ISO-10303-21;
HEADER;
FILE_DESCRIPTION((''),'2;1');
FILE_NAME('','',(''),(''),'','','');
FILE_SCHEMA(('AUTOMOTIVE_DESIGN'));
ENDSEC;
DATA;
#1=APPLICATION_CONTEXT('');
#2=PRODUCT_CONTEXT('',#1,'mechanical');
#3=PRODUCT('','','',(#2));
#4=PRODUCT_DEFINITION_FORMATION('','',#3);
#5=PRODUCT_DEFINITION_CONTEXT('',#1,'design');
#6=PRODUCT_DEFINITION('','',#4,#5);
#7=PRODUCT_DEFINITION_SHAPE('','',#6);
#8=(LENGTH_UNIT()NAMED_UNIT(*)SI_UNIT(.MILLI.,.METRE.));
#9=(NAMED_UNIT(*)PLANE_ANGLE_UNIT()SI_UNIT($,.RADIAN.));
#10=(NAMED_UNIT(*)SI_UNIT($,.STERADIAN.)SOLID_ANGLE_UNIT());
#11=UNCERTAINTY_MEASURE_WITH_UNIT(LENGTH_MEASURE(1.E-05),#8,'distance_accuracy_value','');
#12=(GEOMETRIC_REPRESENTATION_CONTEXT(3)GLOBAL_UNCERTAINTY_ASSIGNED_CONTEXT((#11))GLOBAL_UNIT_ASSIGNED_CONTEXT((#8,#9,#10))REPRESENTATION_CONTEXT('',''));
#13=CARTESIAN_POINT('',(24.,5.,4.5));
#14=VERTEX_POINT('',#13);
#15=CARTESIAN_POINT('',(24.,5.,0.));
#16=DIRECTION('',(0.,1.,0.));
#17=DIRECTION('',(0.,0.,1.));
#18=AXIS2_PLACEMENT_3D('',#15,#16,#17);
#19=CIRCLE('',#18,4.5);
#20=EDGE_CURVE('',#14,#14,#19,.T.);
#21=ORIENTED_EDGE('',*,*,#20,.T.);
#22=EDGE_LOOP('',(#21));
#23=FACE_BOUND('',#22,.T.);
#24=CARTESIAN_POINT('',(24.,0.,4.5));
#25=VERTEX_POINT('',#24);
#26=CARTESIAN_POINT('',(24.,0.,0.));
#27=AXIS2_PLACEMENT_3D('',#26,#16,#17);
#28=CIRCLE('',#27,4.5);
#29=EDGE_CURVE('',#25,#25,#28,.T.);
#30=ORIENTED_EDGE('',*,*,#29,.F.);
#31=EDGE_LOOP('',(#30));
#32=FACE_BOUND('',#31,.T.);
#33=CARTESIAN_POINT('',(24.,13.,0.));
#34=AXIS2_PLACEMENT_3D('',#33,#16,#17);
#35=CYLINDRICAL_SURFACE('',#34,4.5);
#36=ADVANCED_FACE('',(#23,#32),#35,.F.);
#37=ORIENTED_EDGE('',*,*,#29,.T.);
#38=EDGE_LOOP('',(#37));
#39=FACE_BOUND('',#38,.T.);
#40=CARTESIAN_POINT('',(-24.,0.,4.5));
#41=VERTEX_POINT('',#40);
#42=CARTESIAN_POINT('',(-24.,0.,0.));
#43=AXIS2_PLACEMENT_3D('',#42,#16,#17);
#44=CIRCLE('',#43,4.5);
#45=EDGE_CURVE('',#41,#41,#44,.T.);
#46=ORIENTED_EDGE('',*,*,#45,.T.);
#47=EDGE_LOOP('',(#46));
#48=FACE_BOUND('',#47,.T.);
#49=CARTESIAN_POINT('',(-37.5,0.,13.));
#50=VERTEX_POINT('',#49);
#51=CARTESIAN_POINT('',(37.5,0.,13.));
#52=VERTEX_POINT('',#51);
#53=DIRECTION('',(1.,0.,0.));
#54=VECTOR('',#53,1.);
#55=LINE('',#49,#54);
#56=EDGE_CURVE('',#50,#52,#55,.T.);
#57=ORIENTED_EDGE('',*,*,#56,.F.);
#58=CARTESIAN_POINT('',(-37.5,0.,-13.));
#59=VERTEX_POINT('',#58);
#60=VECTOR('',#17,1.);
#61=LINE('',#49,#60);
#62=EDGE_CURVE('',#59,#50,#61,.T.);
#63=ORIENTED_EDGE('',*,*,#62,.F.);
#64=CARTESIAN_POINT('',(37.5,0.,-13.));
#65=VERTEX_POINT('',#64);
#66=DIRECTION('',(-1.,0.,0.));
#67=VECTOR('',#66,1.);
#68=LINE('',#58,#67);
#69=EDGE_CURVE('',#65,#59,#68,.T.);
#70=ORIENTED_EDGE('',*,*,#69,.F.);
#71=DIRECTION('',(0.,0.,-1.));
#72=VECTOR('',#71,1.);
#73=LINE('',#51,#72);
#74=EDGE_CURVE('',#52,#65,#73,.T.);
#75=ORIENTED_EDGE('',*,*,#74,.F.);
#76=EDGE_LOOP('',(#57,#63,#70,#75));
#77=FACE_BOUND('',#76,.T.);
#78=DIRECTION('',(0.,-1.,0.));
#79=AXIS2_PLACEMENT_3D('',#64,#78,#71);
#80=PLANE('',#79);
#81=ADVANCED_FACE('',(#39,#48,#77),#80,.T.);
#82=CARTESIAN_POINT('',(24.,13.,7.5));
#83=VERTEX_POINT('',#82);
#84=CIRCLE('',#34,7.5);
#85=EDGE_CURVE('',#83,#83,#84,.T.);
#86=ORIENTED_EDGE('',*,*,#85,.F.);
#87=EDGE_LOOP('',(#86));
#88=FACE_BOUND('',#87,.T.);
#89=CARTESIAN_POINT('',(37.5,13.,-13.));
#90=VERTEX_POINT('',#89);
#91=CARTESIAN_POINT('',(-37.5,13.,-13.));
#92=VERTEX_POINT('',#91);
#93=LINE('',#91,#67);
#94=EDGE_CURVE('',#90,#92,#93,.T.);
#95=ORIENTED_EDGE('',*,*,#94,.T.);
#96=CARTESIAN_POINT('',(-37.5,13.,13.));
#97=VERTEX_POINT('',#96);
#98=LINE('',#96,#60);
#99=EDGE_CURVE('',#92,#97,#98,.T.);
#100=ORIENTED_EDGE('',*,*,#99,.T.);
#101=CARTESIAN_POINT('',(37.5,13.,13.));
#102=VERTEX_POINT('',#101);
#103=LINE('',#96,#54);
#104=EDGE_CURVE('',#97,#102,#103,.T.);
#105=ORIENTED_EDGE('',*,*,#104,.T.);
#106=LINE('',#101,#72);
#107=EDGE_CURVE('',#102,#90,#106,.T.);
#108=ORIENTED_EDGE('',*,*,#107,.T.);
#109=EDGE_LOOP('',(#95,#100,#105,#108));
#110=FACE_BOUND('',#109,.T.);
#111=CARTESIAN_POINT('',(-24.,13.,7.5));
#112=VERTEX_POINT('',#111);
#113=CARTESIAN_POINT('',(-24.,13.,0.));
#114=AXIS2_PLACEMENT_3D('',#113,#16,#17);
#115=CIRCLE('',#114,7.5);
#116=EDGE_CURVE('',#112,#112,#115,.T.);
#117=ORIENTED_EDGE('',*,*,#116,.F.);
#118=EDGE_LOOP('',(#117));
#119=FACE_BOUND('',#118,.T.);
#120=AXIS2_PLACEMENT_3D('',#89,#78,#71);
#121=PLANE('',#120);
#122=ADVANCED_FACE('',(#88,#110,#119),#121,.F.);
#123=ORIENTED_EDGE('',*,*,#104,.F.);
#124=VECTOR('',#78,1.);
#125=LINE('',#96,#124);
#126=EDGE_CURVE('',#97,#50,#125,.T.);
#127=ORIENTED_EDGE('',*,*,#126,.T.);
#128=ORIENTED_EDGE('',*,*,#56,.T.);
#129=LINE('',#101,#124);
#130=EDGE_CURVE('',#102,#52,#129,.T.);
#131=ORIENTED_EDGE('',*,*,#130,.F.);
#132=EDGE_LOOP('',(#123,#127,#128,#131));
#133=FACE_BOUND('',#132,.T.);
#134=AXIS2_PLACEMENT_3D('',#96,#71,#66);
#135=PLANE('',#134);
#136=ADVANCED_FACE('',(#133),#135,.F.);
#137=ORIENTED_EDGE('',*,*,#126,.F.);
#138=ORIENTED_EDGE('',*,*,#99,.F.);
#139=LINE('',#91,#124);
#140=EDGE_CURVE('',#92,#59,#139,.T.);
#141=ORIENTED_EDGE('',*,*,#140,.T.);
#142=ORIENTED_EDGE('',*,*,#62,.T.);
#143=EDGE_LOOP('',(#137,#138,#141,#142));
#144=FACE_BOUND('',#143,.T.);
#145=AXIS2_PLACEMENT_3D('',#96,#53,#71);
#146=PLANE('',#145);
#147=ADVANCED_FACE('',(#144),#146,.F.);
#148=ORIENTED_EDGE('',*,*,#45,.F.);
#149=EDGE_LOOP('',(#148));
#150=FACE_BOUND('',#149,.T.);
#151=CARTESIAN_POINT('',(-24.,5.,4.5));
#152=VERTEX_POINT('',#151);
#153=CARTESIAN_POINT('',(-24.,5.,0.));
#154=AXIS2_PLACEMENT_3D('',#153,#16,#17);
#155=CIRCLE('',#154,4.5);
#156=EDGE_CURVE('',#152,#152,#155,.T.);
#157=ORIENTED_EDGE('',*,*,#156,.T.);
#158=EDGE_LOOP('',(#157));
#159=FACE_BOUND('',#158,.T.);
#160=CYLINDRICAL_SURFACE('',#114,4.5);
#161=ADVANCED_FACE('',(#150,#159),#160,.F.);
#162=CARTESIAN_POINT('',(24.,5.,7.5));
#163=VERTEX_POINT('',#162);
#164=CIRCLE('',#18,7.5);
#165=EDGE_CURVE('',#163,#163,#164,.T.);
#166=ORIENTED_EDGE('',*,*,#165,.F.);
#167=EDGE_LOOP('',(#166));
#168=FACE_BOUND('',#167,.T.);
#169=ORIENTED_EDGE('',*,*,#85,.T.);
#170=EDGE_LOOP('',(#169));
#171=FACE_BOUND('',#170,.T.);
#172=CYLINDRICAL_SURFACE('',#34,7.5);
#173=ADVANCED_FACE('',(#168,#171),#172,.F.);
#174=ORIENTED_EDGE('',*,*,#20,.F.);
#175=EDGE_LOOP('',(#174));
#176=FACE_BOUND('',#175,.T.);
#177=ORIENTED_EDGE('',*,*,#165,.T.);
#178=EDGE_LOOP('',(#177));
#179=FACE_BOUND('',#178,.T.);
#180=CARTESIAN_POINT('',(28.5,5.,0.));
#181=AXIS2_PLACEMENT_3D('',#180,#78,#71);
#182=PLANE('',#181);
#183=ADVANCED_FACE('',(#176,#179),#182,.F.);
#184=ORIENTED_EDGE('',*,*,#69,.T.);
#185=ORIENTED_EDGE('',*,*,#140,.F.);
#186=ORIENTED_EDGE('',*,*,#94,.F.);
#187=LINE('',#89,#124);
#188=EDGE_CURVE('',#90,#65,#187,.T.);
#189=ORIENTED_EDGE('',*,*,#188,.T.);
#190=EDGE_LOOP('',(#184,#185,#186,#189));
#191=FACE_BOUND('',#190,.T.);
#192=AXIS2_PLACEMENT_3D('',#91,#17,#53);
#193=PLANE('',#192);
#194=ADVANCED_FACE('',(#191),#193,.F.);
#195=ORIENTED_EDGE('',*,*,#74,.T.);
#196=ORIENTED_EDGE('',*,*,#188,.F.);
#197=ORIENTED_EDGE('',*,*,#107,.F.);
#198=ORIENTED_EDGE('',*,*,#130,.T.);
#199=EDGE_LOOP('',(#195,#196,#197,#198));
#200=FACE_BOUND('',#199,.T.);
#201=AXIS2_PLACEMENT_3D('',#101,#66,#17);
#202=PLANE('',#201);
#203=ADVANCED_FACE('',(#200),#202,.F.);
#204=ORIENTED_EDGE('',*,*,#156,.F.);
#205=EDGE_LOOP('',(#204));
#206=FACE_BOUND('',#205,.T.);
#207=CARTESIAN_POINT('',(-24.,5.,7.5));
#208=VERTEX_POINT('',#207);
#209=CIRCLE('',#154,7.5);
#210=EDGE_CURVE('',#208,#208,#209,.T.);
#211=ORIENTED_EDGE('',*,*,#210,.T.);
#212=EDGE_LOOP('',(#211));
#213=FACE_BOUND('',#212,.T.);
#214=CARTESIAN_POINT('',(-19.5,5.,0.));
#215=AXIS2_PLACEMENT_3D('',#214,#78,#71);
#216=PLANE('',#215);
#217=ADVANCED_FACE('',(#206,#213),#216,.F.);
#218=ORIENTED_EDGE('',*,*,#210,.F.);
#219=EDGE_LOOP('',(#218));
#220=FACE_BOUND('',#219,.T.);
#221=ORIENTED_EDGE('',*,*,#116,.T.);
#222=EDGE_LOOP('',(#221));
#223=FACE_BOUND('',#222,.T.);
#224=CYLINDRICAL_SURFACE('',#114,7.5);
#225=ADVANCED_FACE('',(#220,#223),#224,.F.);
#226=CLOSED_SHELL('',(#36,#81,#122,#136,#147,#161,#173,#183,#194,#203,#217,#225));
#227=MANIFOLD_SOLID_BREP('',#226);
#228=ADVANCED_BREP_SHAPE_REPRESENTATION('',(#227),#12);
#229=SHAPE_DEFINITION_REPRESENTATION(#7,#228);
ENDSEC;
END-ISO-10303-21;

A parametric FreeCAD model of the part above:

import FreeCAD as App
import Part
import Sketcher

V = App.Vector


def add_polygon(sketch, points):
    """Adds a closed chain of lines whose ends are joined by coincident constraints."""
    first, n = sketch.GeometryCount, len(points)
    for a, b in zip(points, points[1:] + points[:1]):
        sketch.addGeometry(Part.LineSegment(App.Vector(*a, 0), App.Vector(*b, 0)), False)
    for i in range(n):
        sketch.addConstraint(Sketcher.Constraint("Coincident", first + i, 2, first + (i + 1) % n, 1))

doc = App.newDocument("Part")
params = doc.addObject("Spreadsheet::Sheet", "Params")
for row, (alias, value) in enumerate([
    ("sketch1_width", "75 mm"),
    ("sketch1_height", "26 mm"),
    ("pad1_length", "13 mm"),
    ("sketch2_diameter", "9 mm"),
    ("hole_diameter", "9 mm"),
    ("hole_cbore_diameter", "15 mm"),
    ("hole_cbore_depth", "8 mm"),
], start=1):
    params.set(f"A{row}", alias)
    params.set(f"B{row}", "=" + value)
    params.setAlias(f"B{row}", alias)

body = doc.addObject("PartDesign::Body", "Body")

# Sketch on XZ plane
sketch1 = doc.addObject("Sketcher::SketchObject", "Sketch")
body.addObject(sketch1)
sketch1.AttachmentSupport = (doc.XZ_Plane, [""])
sketch1.MapMode = "FlatFace"
add_polygon(sketch1, [(-38, -13), (-38, 13), (38, 13), (38, -13)])  # lines 0-3
sketch1.addConstraint([
    Sketcher.Constraint("Vertical", 0),
    Sketcher.Constraint("Horizontal", 1),
    Sketcher.Constraint("Vertical", 2),
    Sketcher.Constraint("Horizontal", 3),
    Sketcher.Constraint("Symmetric", 0, 2, 2, 2, -1, 1),
    Sketcher.Constraint("DistanceX", 1, 1, 1, 2, 75.0),
    Sketcher.Constraint("DistanceY", 0, 1, 0, 2, 26.0),
])
sketch1.setExpression("Constraints[9]", "Params.sketch1_width")
sketch1.setExpression("Constraints[10]", "Params.sketch1_height")
pad1 = doc.addObject("PartDesign::Pad", "Pad")
body.addObject(pad1)
pad1.Profile = sketch1
pad1.setExpression("Length", "Params.pad1_length")
pad1.Reversed = True

# Sketch on XZ plane
sketch2 = doc.addObject("Sketcher::SketchObject", "Sketch001")
body.addObject(sketch2)
sketch2.AttachmentSupport = (doc.XZ_Plane, [""])
sketch2.MapMode = "FlatFace"
sketch2.AttachmentOffset = App.Placement(V(0, 0, -13), App.Rotation())
sketch2.addGeometry(Part.Circle(V(-24, 0, 0), V(0, 0, 1), 4.5), False)
sketch2.addConstraint([
    Sketcher.Constraint("PointOnObject", 0, 3, -1),
    Sketcher.Constraint("Diameter", 0, 9.0),
    Sketcher.Constraint("DistanceX", 0, 3, -1, 1, 24.0),
])
sketch2.setExpression("Constraints[1]", "Params.sketch2_diameter")
doc.recompute()
hole = doc.addObject("PartDesign::Hole", "Hole")
body.addObject(hole)
hole.Profile = sketch2
hole.ThreadType = "None"
hole.setExpression("Diameter", "Params.hole_diameter")
hole.DepthType = "ThroughAll"
hole.HoleCutType = "Counterbore"
hole.setExpression("HoleCutDiameter", "Params.hole_cbore_diameter")
hole.setExpression("HoleCutDepth", "Params.hole_cbore_depth")
hole.Reversed = True
doc.recompute()

mirrored = doc.addObject("PartDesign::Mirrored", "Mirrored")
body.addObject(mirrored)
mirrored.Originals = [hole]
mirrored.MirrorPlane = (doc.YZ_Plane, [""])
body.Tip = mirrored

doc.recompute()
